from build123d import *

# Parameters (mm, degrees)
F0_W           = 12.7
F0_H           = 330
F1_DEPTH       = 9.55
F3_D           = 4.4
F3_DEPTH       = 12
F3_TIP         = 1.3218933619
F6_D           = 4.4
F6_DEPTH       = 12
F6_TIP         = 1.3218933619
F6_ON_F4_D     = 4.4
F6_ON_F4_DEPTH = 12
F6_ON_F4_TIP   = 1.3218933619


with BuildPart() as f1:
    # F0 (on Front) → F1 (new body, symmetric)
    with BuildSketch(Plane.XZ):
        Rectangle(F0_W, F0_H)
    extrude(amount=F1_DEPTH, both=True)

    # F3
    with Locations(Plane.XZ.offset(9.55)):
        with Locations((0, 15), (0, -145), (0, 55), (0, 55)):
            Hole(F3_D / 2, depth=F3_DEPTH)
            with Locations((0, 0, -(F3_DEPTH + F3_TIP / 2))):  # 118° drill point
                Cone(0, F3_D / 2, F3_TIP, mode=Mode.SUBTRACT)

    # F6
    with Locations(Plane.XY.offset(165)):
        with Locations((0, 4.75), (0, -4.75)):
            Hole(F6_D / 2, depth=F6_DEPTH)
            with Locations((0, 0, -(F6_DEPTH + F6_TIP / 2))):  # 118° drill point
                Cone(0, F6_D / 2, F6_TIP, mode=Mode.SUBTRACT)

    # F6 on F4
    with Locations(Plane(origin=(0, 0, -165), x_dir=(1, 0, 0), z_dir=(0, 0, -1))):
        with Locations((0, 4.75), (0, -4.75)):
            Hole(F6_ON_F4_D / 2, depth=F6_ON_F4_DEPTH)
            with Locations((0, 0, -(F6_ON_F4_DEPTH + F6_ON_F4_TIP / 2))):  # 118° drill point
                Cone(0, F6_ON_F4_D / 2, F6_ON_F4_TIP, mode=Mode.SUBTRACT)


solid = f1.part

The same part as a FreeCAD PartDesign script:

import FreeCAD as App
import Part
import Sketcher

V = App.Vector
Q = App.Units.Quantity


def add_polygon(sketch, points):
    """Adds a closed chain of lines whose ends are joined by coincident constraints."""
    first, n = sketch.GeometryCount, len(points)
    for a, b in zip(points, points[1:] + points[:1]):
        sketch.addGeometry(Part.LineSegment(App.Vector(*a, 0), App.Vector(*b, 0)), False)
    for i in range(n):
        sketch.addConstraint(Sketcher.Constraint("Coincident", first + i, 2, first + (i + 1) % n, 1))

doc = App.newDocument("Part")
params = doc.addObject("Spreadsheet::Sheet", "Params")
for row, (alias, value) in enumerate([
    ("sketch1_height", "330 mm"),
    ("sketch1_width", "12.7 mm"),
    ("pad1_length", "19.1 mm"),
    ("sketch2_diameter", "4.4 mm"),
    ("hole_diameter", "4.4 mm"),
    ("hole_depth", "12 mm"),
    ("sketch3_diameter", "4.4 mm"),
    ("hole2_diameter", "4.4 mm"),
    ("hole2_depth", "12 mm"),
    ("sketch4_diameter", "4.4 mm"),
    ("hole3_diameter", "4.4 mm"),
    ("hole3_depth", "12 mm"),
], start=1):
    params.set(f"A{row}", alias)
    params.set(f"B{row}", "=" + value)
    params.setAlias(f"B{row}", alias)

body = doc.addObject("PartDesign::Body", "Body")

# Sketch on XZ plane
sketch1 = doc.addObject("Sketcher::SketchObject", "Sketch")
body.addObject(sketch1)
sketch1.AttachmentSupport = (doc.XZ_Plane, [""])
sketch1.MapMode = "FlatFace"
add_polygon(sketch1, [(-6, 165), (-6, -165), (6, -165), (6, 165)])  # lines 0-3
sketch1.addConstraint(Sketcher.Constraint("Vertical", 0))
sketch1.addConstraint(Sketcher.Constraint("Horizontal", 1))
sketch1.addConstraint(Sketcher.Constraint("Vertical", 2))
sketch1.addConstraint(Sketcher.Constraint("Horizontal", 3))
sketch1.addConstraint(Sketcher.Constraint("Symmetric", 0, 2, 2, 2, -1, 1))
sketch1.addConstraint(Sketcher.Constraint("DistanceY", 0, 2, 0, 1, Q("330 mm")))
sketch1.addConstraint(Sketcher.Constraint("DistanceX", 1, 1, 1, 2, Q("12.7 mm")))
sketch1.setExpression("Constraints[9]", "Params.sketch1_height")
sketch1.setExpression("Constraints[10]", "Params.sketch1_width")
pad1 = doc.addObject("PartDesign::Pad", "Pad")
body.addObject(pad1)
pad1.Profile = sketch1
pad1.setExpression("Length", "Params.pad1_length")
pad1.Midplane = True

# Sketch on XZ plane
sketch2 = doc.addObject("Sketcher::SketchObject", "Sketch001")
body.addObject(sketch2)
sketch2.AttachmentSupport = (doc.XZ_Plane, [""])
sketch2.MapMode = "FlatFace"
sketch2.AttachmentOffset = App.Placement(V(0, 0, 9.55), App.Rotation())
sketch2.addGeometry(Part.Circle(V(0, 15, 0), V(0, 0, 1), 2.2), False)
sketch2.addGeometry(Part.Circle(V(0, -145, 0), V(0, 0, 1), 2.2), False)
sketch2.addGeometry(Part.Circle(V(0, 55, 0), V(0, 0, 1), 2.2), False)
sketch2.addGeometry(Part.Circle(V(0, 55, 0), V(0, 0, 1), 2.2), False)
sketch2.addConstraint(Sketcher.Constraint("Coincident", 3, 3, 2, 3))
sketch2.addConstraint(Sketcher.Constraint("Equal", 0, 1))
sketch2.addConstraint(Sketcher.Constraint("Equal", 1, 2))
sketch2.addConstraint(Sketcher.Constraint("Equal", 2, 3))
sketch2.addConstraint(Sketcher.Constraint("PointOnObject", 0, 3, -2))
sketch2.addConstraint(Sketcher.Constraint("PointOnObject", 1, 3, -2))
sketch2.addConstraint(Sketcher.Constraint("PointOnObject", 2, 3, -2))
sketch2.addConstraint(Sketcher.Constraint("Diameter", 0, Q("4.4 mm")))
sketch2.addConstraint(Sketcher.Constraint("DistanceY", -1, 1, 0, 3, Q("15 mm")))
sketch2.addConstraint(Sketcher.Constraint("DistanceY", 1, 3, -1, 1, Q("145 mm")))
sketch2.addConstraint(Sketcher.Constraint("DistanceY", -1, 1, 2, 3, Q("55 mm")))
sketch2.setExpression("Constraints[7]", "Params.sketch2_diameter")
doc.recompute()
hole = doc.addObject("PartDesign::Hole", "Hole")
body.addObject(hole)
hole.Profile = sketch2
hole.ThreadType = "None"
hole.setExpression("Diameter", "Params.hole_diameter")
hole.DepthType = "Dimension"
hole.setExpression("Depth", "Params.hole_depth")
hole.DrillPoint = "Angled"
hole.DrillPointAngle = 118

# Sketch on XY plane
sketch3 = doc.addObject("Sketcher::SketchObject", "Sketch002")
body.addObject(sketch3)
sketch3.AttachmentSupport = (doc.XY_Plane, [""])
sketch3.MapMode = "FlatFace"
sketch3.AttachmentOffset = App.Placement(V(0, 0, 165), App.Rotation())
sketch3.addGeometry(Part.Circle(V(0, 4.8, 0), V(0, 0, 1), 2.2), False)
sketch3.addGeometry(Part.Circle(V(0, -4.8, 0), V(0, 0, 1), 2.2), False)
sketch3.addConstraint(Sketcher.Constraint("Equal", 0, 1))
sketch3.addConstraint(Sketcher.Constraint("Symmetric", 0, 3, 1, 3, -1, 1))
sketch3.addConstraint(Sketcher.Constraint("PointOnObject", 0, 3, -2))
sketch3.addConstraint(Sketcher.Constraint("Diameter", 0, Q("4.4 mm")))
sketch3.addConstraint(Sketcher.Constraint("DistanceY", 1, 3, 0, 3, Q("9.5 mm")))
sketch3.setExpression("Constraints[3]", "Params.sketch3_diameter")
doc.recompute()
hole2 = doc.addObject("PartDesign::Hole", "Hole001")
body.addObject(hole2)
hole2.Profile = sketch3
hole2.ThreadType = "None"
hole2.setExpression("Diameter", "Params.hole2_diameter")
hole2.DepthType = "Dimension"
hole2.setExpression("Depth", "Params.hole2_depth")
hole2.DrillPoint = "Angled"
hole2.DrillPointAngle = 118

# Sketch on XY plane
sketch4 = doc.addObject("Sketcher::SketchObject", "Sketch003")
body.addObject(sketch4)
sketch4.AttachmentSupport = (doc.XY_Plane, [""])
sketch4.MapMode = "FlatFace"
sketch4.AttachmentOffset = App.Placement(V(0, 0, -165), App.Rotation())
sketch4.addGeometry(Part.Circle(V(0, -4.8, 0), V(0, 0, 1), 2.2), False)
sketch4.addGeometry(Part.Circle(V(0, 4.8, 0), V(0, 0, 1), 2.2), False)
sketch4.addConstraint(Sketcher.Constraint("Equal", 0, 1))
sketch4.addConstraint(Sketcher.Constraint("Symmetric", 0, 3, 1, 3, -1, 1))
sketch4.addConstraint(Sketcher.Constraint("PointOnObject", 0, 3, -2))
sketch4.addConstraint(Sketcher.Constraint("Diameter", 0, Q("4.4 mm")))
sketch4.addConstraint(Sketcher.Constraint("DistanceY", 0, 3, 1, 3, Q("9.5 mm")))
sketch4.setExpression("Constraints[3]", "Params.sketch4_diameter")
doc.recompute()
hole3 = doc.addObject("PartDesign::Hole", "Hole002")
body.addObject(hole3)
hole3.Profile = sketch4
hole3.ThreadType = "None"
hole3.setExpression("Diameter", "Params.hole3_diameter")
hole3.DepthType = "Dimension"
hole3.setExpression("Depth", "Params.hole3_depth")
hole3.DrillPoint = "Angled"
hole3.DrillPointAngle = 118
hole3.Reversed = True

doc.recompute()
